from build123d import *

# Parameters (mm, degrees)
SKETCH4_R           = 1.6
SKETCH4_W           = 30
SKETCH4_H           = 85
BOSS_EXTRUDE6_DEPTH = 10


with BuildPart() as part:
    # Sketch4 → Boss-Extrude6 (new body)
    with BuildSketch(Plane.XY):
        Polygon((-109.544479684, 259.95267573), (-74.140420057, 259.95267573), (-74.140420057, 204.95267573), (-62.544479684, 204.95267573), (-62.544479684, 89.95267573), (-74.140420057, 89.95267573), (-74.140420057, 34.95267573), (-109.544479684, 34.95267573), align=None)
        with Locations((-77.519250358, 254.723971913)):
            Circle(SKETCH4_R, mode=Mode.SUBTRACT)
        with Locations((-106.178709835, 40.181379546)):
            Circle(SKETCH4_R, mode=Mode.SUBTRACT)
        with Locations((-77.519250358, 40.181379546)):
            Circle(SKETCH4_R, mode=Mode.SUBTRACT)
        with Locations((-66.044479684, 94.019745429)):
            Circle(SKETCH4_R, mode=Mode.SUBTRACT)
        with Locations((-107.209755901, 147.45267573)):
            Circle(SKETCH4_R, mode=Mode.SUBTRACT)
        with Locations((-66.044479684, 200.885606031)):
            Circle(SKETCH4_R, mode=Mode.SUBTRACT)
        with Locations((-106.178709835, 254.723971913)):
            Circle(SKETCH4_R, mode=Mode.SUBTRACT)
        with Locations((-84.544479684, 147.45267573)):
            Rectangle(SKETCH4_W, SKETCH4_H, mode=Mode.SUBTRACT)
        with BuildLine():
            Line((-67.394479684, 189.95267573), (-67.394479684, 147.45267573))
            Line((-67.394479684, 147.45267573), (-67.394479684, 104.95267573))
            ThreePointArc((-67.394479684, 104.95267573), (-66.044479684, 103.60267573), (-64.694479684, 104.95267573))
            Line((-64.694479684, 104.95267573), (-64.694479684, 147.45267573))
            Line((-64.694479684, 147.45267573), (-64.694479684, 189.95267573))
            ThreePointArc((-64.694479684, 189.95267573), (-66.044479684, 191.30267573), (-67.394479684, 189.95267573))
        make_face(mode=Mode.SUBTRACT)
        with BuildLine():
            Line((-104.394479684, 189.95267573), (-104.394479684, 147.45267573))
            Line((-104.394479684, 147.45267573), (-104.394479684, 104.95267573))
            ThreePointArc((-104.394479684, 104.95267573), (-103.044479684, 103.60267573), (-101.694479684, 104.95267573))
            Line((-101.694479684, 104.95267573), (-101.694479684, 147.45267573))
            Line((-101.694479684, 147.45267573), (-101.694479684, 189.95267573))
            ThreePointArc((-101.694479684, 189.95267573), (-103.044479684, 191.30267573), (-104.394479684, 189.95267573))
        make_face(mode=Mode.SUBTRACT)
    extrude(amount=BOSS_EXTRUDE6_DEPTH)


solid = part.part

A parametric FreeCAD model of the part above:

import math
import FreeCAD as App
import Part
import Sketcher
from FreeCAD import Vector
Q = App.Units.Quantity


def add_polygon(sketch, points):
    """Adds a closed chain of lines whose ends are joined by coincident constraints."""
    first, n = sketch.GeometryCount, len(points)
    for a, b in zip(points, points[1:] + points[:1]):
        sketch.addGeometry(Part.LineSegment(App.Vector(*a, 0), App.Vector(*b, 0)), False)
    for i in range(n):
        sketch.addConstraint(Sketcher.Constraint("Coincident", first + i, 2, first + (i + 1) % n, 1))

doc = App.newDocument("Part")
body = doc.addObject("PartDesign::Body", "Body")

sketch1 = body.newObject("Sketcher::SketchObject", "Sketch")
sketch1.AttachmentSupport = (doc.getObject("XY_Plane"), [""])
sketch1.MapMode = "FlatFace"
add_polygon(sketch1, [(-74.1, 260), (-109.5, 260), (-109.5, 35), (-74.1, 35), (-74.1, 90), (-62.5, 90), (-62.5, 205), (-74.1, 205)])
sketch1.addGeometry(Part.Circle(Vector(-77.5, 40.2, 0), Vector(0, 0, 1), 1.6), False)
sketch1.addGeometry(Part.Circle(Vector(-66, 94, 0), Vector(0, 0, 1), 1.6), False)
sketch1.addGeometry(Part.Circle(Vector(-106.2, 40.2, 0), Vector(0, 0, 1), 1.6), False)
sketch1.addGeometry(Part.ArcOfCircle(Part.Circle(Vector(-66, 190, 0), Vector(0, 0, 1), 1.4), math.radians(0), math.radians(180)), False)
sketch1.addGeometry(Part.LineSegment(Vector(-64.7, 190, 0), Vector(-64.7, 105, 0)), False)
sketch1.addGeometry(Part.ArcOfCircle(Part.Circle(Vector(-66, 105, 0), Vector(0, 0, 1), 1.4), math.radians(180), math.radians(360)), False)
sketch1.addGeometry(Part.LineSegment(Vector(-67.4, 105, 0), Vector(-67.4, 190, 0)), False)
sketch1.addGeometry(Part.Circle(Vector(-66, 200.9, 0), Vector(0, 0, 1), 1.6), False)
add_polygon(sketch1, [(-99.5, 105), (-99.5, 190), (-69.5, 190), (-69.5, 105)])
sketch1.addGeometry(Part.Circle(Vector(-77.5, 254.7, 0), Vector(0, 0, 1), 1.6), False)
sketch1.addGeometry(Part.ArcOfCircle(Part.Circle(Vector(-103, 190, 0), Vector(0, 0, 1), 1.4), math.radians(0), math.radians(180)), False)
sketch1.addGeometry(Part.LineSegment(Vector(-101.7, 190, 0), Vector(-101.7, 105, 0)), False)
sketch1.addGeometry(Part.ArcOfCircle(Part.Circle(Vector(-103, 105, 0), Vector(0, 0, 1), 1.4), math.radians(180), math.radians(360)), False)
sketch1.addGeometry(Part.LineSegment(Vector(-104.4, 105, 0), Vector(-104.4, 190, 0)), False)
sketch1.addGeometry(Part.Circle(Vector(-107.2, 147.5, 0), Vector(0, 0, 1), 1.6), False)
sketch1.addGeometry(Part.Circle(Vector(-106.2, 254.7, 0), Vector(0, 0, 1), 1.6), False)
sketch1.addConstraint(Sketcher.Constraint("Tangent", 11, 1, 12, 1))
sketch1.addConstraint(Sketcher.Constraint("Tangent", 12, 2, 13, 2))
sketch1.addConstraint(Sketcher.Constraint("Tangent", 13, 1, 14, 1))
sketch1.addConstraint(Sketcher.Constraint("Tangent", 14, 2, 11, 2))
sketch1.addConstraint(Sketcher.Constraint("Tangent", 21, 1, 22, 1))
sketch1.addConstraint(Sketcher.Constraint("Tangent", 22, 2, 23, 2))
sketch1.addConstraint(Sketcher.Constraint("Tangent", 23, 1, 24, 1))
sketch1.addConstraint(Sketcher.Constraint("Tangent", 24, 2, 21, 2))
sketch1.addConstraint(Sketcher.Constraint("Horizontal", 0))
sketch1.addConstraint(Sketcher.Constraint("Vertical", 1))
sketch1.addConstraint(Sketcher.Constraint("Horizontal", 2))
sketch1.addConstraint(Sketcher.Constraint("Vertical", 3))
sketch1.addConstraint(Sketcher.Constraint("Horizontal", 4))
sketch1.addConstraint(Sketcher.Constraint("Vertical", 5))
sketch1.addConstraint(Sketcher.Constraint("Horizontal", 6))
sketch1.addConstraint(Sketcher.Constraint("Vertical", 7))
sketch1.addConstraint(Sketcher.Constraint("Vertical", 12))
sketch1.addConstraint(Sketcher.Constraint("Vertical", 14))
sketch1.addConstraint(Sketcher.Constraint("Vertical", 16))
sketch1.addConstraint(Sketcher.Constraint("Horizontal", 17))
sketch1.addConstraint(Sketcher.Constraint("Vertical", 18))
sketch1.addConstraint(Sketcher.Constraint("Horizontal", 19))
sketch1.addConstraint(Sketcher.Constraint("Vertical", 22))
sketch1.addConstraint(Sketcher.Constraint("Vertical", 24))
sketch1.addConstraint(Sketcher.Constraint("Equal", 8, 9))
sketch1.addConstraint(Sketcher.Constraint("Equal", 9, 10))
sketch1.addConstraint(Sketcher.Constraint("Equal", 10, 15))
sketch1.addConstraint(Sketcher.Constraint("Equal", 15, 20))
sketch1.addConstraint(Sketcher.Constraint("Equal", 13, 21))
sketch1.addConstraint(Sketcher.Constraint("Equal", 20, 25))
sketch1.addConstraint(Sketcher.Constraint("Equal", 25, 26))
sketch1.addConstraint(Sketcher.Constraint("Horizontal", 8, 3, 10, 3))
sketch1.addConstraint(Sketcher.Constraint("Horizontal", 11, 3, 21, 3))
sketch1.addConstraint(Sketcher.Constraint("Horizontal", 13, 3, 23, 3))
sketch1.addConstraint(Sketcher.Constraint("Horizontal", 20, 3, 26, 3))
sketch1.addConstraint(Sketcher.Constraint("Horizontal", 14, 2, 16, 2))
sketch1.addConstraint(Sketcher.Constraint("Horizontal", 13, 1, 18, 2))
sketch1.addConstraint(Sketcher.Constraint("Vertical", 9, 3, 11, 3))
sketch1.addConstraint(Sketcher.Constraint("Vertical", 13, 3, 15, 3))
sketch1.addConstraint(Sketcher.Constraint("Vertical", 8, 3, 20, 3))
sketch1.addConstraint(Sketcher.Constraint("Vertical", 10, 3, 26, 3))
sketch1.addConstraint(Sketcher.Constraint("Vertical", 3, 2, 6, 2))
sketch1.addConstraint(Sketcher.Constraint("Equal", 3, 7))
sketch1.addConstraint(Sketcher.Constraint("Diameter", 8, Q("3.2 mm")))
sketch1.addConstraint(Sketcher.Constraint("DistanceX", 17, 1, 17, 2, Q("30 mm")))
sketch1.addConstraint(Sketcher.Constraint("DistanceY", 1, 2, 1, 1, Q("225 mm")))
sketch1.addConstraint(Sketcher.Constraint("DistanceY", 3, 1, 3, 2, Q("55 mm")))
sketch1.addConstraint(Sketcher.Constraint("DistanceY", 12, 2, 12, 1, Q("85 mm")))
sketch1.addConstraint(Sketcher.Constraint("Radius", 11, Q("1.35 mm")))
sketch1.addConstraint(Sketcher.Constraint("DistanceX", 21, 3, 11, 3, Q("37 mm")))
sketch1.addConstraint(Sketcher.Constraint("DistanceY", 21, 3, 0, 2, Q("70 mm")))
sketch1.addConstraint(Sketcher.Constraint("DistanceY", 25, 3, 21, 3, Q("42.5 mm")))
sketch1.addConstraint(Sketcher.Constraint("DistanceX", 0, 2, 21, 3, Q("6.5 mm")))
sketch1.addConstraint(Sketcher.Constraint("DistanceX", 9, 3, 4, 2, Q("3.5 mm")))
sketch1.addConstraint(Sketcher.Constraint("DistanceX", 21, 3, 16, 2, Q("3.5 mm")))
sketch1.addConstraint(Sketcher.Constraint("DistanceX", 0, 2, 0, 1, Q("35.40406 mm")))
sketch1.addConstraint(Sketcher.Constraint("DistanceX", 8, 3, -1, 1, Q("77.51925 mm")))
sketch1.addConstraint(Sketcher.Constraint("DistanceY", -1, 1, 8, 3, Q("40.18138 mm")))
sketch1.addConstraint(Sketcher.Constraint("DistanceX", 9, 3, -1, 1, Q("66.04448 mm")))
sketch1.addConstraint(Sketcher.Constraint("DistanceX", 10, 3, -1, 1, Q("106.17871 mm")))
sketch1.addConstraint(Sketcher.Constraint("DistanceY", -1, 1, 20, 3, Q("254.723972 mm")))
sketch1.addConstraint(Sketcher.Constraint("DistanceY", 9, 3, 11, 3, Q("95.93293 mm")))
sketch1.addConstraint(Sketcher.Constraint("DistanceY", 11, 3, 15, 3, Q("10.93293 mm")))
sketch1.addConstraint(Sketcher.Constraint("DistanceY", -1, 1, 9, 3, Q("94.019745 mm")))
sketch1.addConstraint(Sketcher.Constraint("DistanceX", 25, 3, -1, 1, Q("107.209756 mm")))
pad1 = body.newObject("PartDesign::Pad", "Pad")
pad1.Profile = sketch1
pad1.Length = 10

doc.recompute()
